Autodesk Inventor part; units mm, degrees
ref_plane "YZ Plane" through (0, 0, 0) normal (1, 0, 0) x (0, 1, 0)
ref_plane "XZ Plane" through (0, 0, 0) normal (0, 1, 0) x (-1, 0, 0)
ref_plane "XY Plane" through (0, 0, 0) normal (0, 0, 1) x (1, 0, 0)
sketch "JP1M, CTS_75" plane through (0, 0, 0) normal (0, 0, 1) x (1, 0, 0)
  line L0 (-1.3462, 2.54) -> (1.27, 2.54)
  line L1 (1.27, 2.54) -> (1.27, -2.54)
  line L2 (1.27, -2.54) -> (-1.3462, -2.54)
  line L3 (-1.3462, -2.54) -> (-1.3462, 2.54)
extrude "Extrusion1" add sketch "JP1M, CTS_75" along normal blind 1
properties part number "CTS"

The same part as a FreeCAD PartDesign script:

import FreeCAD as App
import Part
import Sketcher
from FreeCAD import Vector
Q = App.Units.Quantity

doc = App.newDocument("Part")
params = doc.addObject("Spreadsheet::Sheet", "Params")
for row, (alias, value) in enumerate([
    ("sketch1_height", "0.2 in"),
    ("sketch1_width", "0.103 in"),
    ("pad1_length", "1 mm"),
], start=1):
    params.set(f"A{row}", alias)
    params.set(f"B{row}", "=" + value)
    params.setAlias(f"B{row}", alias)

body = doc.addObject("PartDesign::Body", "Body")

# Sketch on XY plane
sketch1 = body.newObject("Sketcher::SketchObject", "Sketch")
sketch1.AttachmentSupport = (doc.getObject("XY_Plane"), [""])
sketch1.MapMode = "FlatFace"
sketch1.addGeometry([
    Part.LineSegment(Vector(1.27, 2.54, 0), Vector(-1.3462, 2.54, 0)),
    Part.LineSegment(Vector(-1.3462, 2.54, 0), Vector(-1.3462, -2.54, 0)),
    Part.LineSegment(Vector(-1.3462, -2.54, 0), Vector(1.27, -2.54, 0)),
    Part.LineSegment(Vector(1.27, -2.54, 0), Vector(1.27, 2.54, 0)),
], False)
sketch1.addConstraint([
    Sketcher.Constraint("Coincident", 0, 2, 1, 1),
    Sketcher.Constraint("Coincident", 1, 2, 2, 1),
    Sketcher.Constraint("Coincident", 2, 2, 3, 1),
    Sketcher.Constraint("Coincident", 3, 2, 0, 1),
    Sketcher.Constraint("Horizontal", 0),
    Sketcher.Constraint("Vertical", 1),
    Sketcher.Constraint("Horizontal", 2),
    Sketcher.Constraint("Vertical", 3),
    Sketcher.Constraint("DistanceY", 1, 2, 1, 1, Q("0.2 in")),
    Sketcher.Constraint("DistanceY", -1, 1, 0, 2, Q("0.1 in")),
    Sketcher.Constraint("DistanceX", 0, 2, 0, 1, Q("0.103 in")),
    Sketcher.Constraint("DistanceX", -1, 1, 2, 2, Q("0.05 in")),
])
sketch1.setExpression("Constraints[8]", "Params.sketch1_height")
sketch1.setExpression("Constraints[10]", "Params.sketch1_width")
pad1 = body.newObject("PartDesign::Pad", "Pad")
pad1.Profile = sketch1
pad1.setExpression("Length", "Params.pad1_length")

doc.recompute()
